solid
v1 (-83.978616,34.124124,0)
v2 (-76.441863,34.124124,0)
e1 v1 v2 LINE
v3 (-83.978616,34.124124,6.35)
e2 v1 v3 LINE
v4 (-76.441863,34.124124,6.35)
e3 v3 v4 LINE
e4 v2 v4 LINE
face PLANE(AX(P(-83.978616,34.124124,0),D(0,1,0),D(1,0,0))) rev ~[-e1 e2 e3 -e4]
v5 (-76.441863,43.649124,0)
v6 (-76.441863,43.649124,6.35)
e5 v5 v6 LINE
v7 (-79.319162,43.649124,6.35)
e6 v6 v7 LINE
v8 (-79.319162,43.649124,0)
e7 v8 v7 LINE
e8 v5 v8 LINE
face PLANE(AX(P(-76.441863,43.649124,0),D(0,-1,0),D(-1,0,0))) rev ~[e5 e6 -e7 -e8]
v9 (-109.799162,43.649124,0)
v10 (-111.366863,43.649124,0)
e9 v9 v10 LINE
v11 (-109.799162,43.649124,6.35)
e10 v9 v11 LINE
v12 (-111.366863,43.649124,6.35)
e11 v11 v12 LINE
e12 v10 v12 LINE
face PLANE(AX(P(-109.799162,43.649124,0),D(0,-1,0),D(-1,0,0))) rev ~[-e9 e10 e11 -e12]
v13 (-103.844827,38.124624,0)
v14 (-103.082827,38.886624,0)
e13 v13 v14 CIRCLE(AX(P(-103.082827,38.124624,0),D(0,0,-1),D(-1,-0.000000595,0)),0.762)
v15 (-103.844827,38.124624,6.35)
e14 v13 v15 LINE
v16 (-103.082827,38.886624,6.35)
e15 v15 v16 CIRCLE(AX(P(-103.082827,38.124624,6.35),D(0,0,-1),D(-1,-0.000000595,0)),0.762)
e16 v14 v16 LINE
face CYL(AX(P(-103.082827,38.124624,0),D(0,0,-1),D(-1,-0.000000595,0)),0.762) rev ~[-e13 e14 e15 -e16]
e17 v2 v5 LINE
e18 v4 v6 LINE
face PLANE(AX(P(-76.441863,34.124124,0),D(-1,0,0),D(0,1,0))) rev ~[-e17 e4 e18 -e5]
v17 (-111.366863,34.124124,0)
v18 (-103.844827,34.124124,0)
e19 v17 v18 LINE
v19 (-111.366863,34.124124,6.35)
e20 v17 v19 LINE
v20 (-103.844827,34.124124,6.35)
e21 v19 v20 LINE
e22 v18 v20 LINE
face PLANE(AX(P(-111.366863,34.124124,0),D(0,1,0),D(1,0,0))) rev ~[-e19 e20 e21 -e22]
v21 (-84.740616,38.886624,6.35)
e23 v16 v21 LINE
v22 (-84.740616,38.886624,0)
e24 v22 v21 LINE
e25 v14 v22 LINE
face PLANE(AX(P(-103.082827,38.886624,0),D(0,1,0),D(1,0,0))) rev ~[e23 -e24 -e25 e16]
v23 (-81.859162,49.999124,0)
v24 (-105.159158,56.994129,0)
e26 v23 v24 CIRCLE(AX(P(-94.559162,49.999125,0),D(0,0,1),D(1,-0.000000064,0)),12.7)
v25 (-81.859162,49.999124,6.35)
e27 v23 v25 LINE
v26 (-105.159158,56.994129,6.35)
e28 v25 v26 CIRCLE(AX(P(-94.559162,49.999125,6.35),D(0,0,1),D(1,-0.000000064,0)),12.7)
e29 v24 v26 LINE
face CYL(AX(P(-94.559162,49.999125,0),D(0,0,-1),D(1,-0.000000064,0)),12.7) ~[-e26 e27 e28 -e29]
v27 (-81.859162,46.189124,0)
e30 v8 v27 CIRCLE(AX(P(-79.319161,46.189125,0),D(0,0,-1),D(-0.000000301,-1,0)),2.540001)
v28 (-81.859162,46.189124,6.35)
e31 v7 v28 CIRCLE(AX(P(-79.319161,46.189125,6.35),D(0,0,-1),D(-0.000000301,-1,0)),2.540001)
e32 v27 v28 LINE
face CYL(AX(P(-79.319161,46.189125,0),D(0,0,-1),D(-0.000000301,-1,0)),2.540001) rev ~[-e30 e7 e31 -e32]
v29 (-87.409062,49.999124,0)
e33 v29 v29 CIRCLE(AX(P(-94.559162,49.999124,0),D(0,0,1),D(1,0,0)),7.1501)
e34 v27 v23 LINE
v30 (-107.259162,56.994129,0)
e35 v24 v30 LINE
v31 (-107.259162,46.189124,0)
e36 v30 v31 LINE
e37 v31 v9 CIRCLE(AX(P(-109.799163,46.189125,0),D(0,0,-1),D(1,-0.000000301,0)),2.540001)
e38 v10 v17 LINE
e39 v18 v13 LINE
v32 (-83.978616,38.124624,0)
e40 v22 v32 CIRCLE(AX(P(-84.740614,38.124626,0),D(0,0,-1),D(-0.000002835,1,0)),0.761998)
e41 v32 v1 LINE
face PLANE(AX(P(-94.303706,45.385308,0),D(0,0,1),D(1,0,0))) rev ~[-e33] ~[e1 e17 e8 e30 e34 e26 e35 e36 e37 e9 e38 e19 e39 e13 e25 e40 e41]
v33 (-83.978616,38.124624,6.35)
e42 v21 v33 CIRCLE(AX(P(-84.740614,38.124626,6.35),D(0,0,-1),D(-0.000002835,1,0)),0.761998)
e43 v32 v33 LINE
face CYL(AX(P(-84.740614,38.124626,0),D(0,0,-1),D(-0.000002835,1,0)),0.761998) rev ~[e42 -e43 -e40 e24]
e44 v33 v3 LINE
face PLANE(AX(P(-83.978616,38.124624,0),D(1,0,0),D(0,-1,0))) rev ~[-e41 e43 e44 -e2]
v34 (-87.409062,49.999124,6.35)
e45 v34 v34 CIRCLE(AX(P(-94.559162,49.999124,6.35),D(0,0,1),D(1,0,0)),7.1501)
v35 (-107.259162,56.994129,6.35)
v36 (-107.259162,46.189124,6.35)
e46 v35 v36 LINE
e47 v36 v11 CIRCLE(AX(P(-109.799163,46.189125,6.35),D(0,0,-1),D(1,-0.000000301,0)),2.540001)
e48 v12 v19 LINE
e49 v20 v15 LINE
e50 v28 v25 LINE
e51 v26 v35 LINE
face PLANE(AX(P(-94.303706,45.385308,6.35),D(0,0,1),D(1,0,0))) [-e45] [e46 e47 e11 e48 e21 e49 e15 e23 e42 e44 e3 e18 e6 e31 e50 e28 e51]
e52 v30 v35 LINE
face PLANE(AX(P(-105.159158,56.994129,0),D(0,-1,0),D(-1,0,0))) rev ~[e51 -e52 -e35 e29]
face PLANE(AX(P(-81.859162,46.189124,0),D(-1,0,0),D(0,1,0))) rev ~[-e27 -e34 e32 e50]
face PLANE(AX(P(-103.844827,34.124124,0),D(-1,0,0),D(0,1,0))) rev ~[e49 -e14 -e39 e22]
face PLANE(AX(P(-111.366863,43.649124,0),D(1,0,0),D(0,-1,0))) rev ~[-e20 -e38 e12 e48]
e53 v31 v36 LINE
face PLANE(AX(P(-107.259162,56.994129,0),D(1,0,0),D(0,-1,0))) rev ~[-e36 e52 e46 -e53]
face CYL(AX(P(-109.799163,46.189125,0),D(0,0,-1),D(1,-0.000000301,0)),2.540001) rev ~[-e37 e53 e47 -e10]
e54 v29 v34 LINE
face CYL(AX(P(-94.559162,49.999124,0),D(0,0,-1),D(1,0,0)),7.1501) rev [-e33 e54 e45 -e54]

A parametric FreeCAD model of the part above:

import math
import FreeCAD as App
import Part
import Sketcher
from FreeCAD import Vector
Q = App.Units.Quantity

doc = App.newDocument("Part")
params = doc.addObject("Spreadsheet::Sheet", "Params")
for row, (alias, value) in enumerate([
    ("sketch1_radius", "0.1 in"),
    ("sketch1_radius2", "0.5 in"),
    ("sketch1_radius3", "0.03 in"),
    ("sketch1_diameter", "0.563 in"),
    ("sketch1_height", "0.15 in"),
    ("pad1_length", "0.25 in"),
], start=1):
    params.set(f"A{row}", alias)
    params.set(f"B{row}", "=" + value)
    params.setAlias(f"B{row}", alias)

body = doc.addObject("PartDesign::Body", "Body")

# Sketch on XY plane
sketch1 = body.newObject("Sketcher::SketchObject", "Sketch")
sketch1.AttachmentSupport = (doc.getObject("XY_Plane"), [""])
sketch1.MapMode = "FlatFace"
sketch1.addGeometry(Part.LineSegment(Vector(-109.799162, 43.649124, 0), Vector(-111.366863, 43.649124, 0)), False)
sketch1.addGeometry(Part.LineSegment(Vector(-111.366863, 43.649124, 0), Vector(-111.366863, 34.124124, 0)), False)
sketch1.addGeometry(Part.LineSegment(Vector(-111.366863, 34.124124, 0), Vector(-103.844827, 34.124124, 0)), False)
sketch1.addGeometry(Part.LineSegment(Vector(-103.844827, 34.124124, 0), Vector(-103.844827, 38.124624, 0)), False)
sketch1.addGeometry(Part.ArcOfCircle(Part.Circle(Vector(-103.082827, 38.124624, 0), Vector(0, 0, 1), 0.762), math.radians(89.999966), math.radians(180.000034)), False)
sketch1.addGeometry(Part.LineSegment(Vector(-103.082827, 38.886624, 0), Vector(-84.740616, 38.886624, 0)), False)
sketch1.addGeometry(Part.ArcOfCircle(Part.Circle(Vector(-84.740614, 38.124626, 0), Vector(0, 0, 1), 0.761998), math.radians(-0.000162), math.radians(90.000162)), False)
sketch1.addGeometry(Part.LineSegment(Vector(-83.978616, 38.124624, 0), Vector(-83.978616, 34.124124, 0)), False)
sketch1.addGeometry(Part.LineSegment(Vector(-83.978616, 34.124124, 0), Vector(-76.441863, 34.124124, 0)), False)
sketch1.addGeometry(Part.LineSegment(Vector(-76.441863, 34.124124, 0), Vector(-76.441863, 43.649124, 0)), False)
sketch1.addGeometry(Part.LineSegment(Vector(-76.441863, 43.649124, 0), Vector(-79.319162, 43.649124, 0)), False)
sketch1.addGeometry(Part.ArcOfCircle(Part.Circle(Vector(-79.319161, 46.189125, 0), Vector(0, 0, 1), 2.540001), math.radians(-179.999983), math.radians(-90.000017)), False)
sketch1.addGeometry(Part.LineSegment(Vector(-81.859162, 46.189124, 0), Vector(-81.859162, 49.999124, 0)), False)
sketch1.addGeometry(Part.ArcOfCircle(Part.Circle(Vector(-94.559162, 49.999125, 0), Vector(0, 0, 1), 12.7), math.radians(-0.000004), math.radians(146.578928)), False)
sketch1.addGeometry(Part.LineSegment(Vector(-105.159158, 56.994129, 0), Vector(-107.259162, 56.994129, 0)), False)
sketch1.addGeometry(Part.LineSegment(Vector(-107.259162, 56.994129, 0), Vector(-107.259162, 46.189124, 0)), False)
sketch1.addGeometry(Part.ArcOfCircle(Part.Circle(Vector(-109.799163, 46.189125, 0), Vector(0, 0, 1), 2.540001), math.radians(-89.999983), math.radians(-0.000017)), False)
sketch1.addGeometry(Part.Circle(Vector(-94.559162, 49.999124, 0), Vector(0, 0, 1), 7.1501), False)
sketch1.addConstraint(Sketcher.Constraint("Coincident", 0, 2, 1, 1))
sketch1.addConstraint(Sketcher.Constraint("Coincident", 1, 2, 2, 1))
sketch1.addConstraint(Sketcher.Constraint("Coincident", 2, 2, 3, 1))
sketch1.addConstraint(Sketcher.Constraint("Tangent", 3, 2, 4, 2))
sketch1.addConstraint(Sketcher.Constraint("Tangent", 4, 1, 5, 1))
sketch1.addConstraint(Sketcher.Constraint("Coincident", 5, 2, 6, 2))
sketch1.addConstraint(Sketcher.Constraint("Coincident", 6, 1, 7, 1))
sketch1.addConstraint(Sketcher.Constraint("Coincident", 7, 2, 8, 1))
sketch1.addConstraint(Sketcher.Constraint("Coincident", 8, 2, 9, 1))
sketch1.addConstraint(Sketcher.Constraint("Coincident", 9, 2, 10, 1))
sketch1.addConstraint(Sketcher.Constraint("Tangent", 10, 2, 11, 2))
sketch1.addConstraint(Sketcher.Constraint("Tangent", 11, 1, 12, 1))
sketch1.addConstraint(Sketcher.Constraint("Tangent", 12, 2, 13, 1))
sketch1.addConstraint(Sketcher.Constraint("Coincident", 13, 2, 14, 1))
sketch1.addConstraint(Sketcher.Constraint("Coincident", 14, 2, 15, 1))
sketch1.addConstraint(Sketcher.Constraint("Tangent", 15, 2, 16, 2))
sketch1.addConstraint(Sketcher.Constraint("Tangent", 16, 1, 0, 1))
sketch1.addConstraint(Sketcher.Constraint("Horizontal", 0))
sketch1.addConstraint(Sketcher.Constraint("Vertical", 1))
sketch1.addConstraint(Sketcher.Constraint("Horizontal", 2))
sketch1.addConstraint(Sketcher.Constraint("Vertical", 3))
sketch1.addConstraint(Sketcher.Constraint("Horizontal", 5))
sketch1.addConstraint(Sketcher.Constraint("Vertical", 7))
sketch1.addConstraint(Sketcher.Constraint("Horizontal", 8))
sketch1.addConstraint(Sketcher.Constraint("Vertical", 9))
sketch1.addConstraint(Sketcher.Constraint("Horizontal", 10))
sketch1.addConstraint(Sketcher.Constraint("Vertical", 12))
sketch1.addConstraint(Sketcher.Constraint("Horizontal", 14))
sketch1.addConstraint(Sketcher.Constraint("Vertical", 15))
sketch1.addConstraint(Sketcher.Constraint("Coincident", 17, 3, 13, 3))
sketch1.addConstraint(Sketcher.Constraint("Equal", 4, 6))
sketch1.addConstraint(Sketcher.Constraint("Equal", 11, 16))
sketch1.addConstraint(Sketcher.Constraint("Horizontal", 11, 3, 16, 3))
sketch1.addConstraint(Sketcher.Constraint("Horizontal", 3, 2, 6, 1))
sketch1.addConstraint(Sketcher.Constraint("Horizontal", 2, 2, 7, 2))
sketch1.addConstraint(Sketcher.Constraint("Radius", 11, Q("0.1 in")))
sketch1.addConstraint(Sketcher.Constraint("Radius", 13, Q("0.5 in")))
sketch1.addConstraint(Sketcher.Constraint("Radius", 4, Q("0.03 in")))
sketch1.addConstraint(Sketcher.Constraint("Diameter", 17, Q("0.563 in")))
sketch1.addConstraint(Sketcher.Constraint("DistanceY", 12, 1, 12, 2, Q("0.15 in")))
sketch1.addConstraint(Sketcher.Constraint("DistanceX", 16, 3, 13, 3, Q("0.6 in")))
sketch1.addConstraint(Sketcher.Constraint("DistanceY", 1, 2, 1, 1, Q("0.375 in")))
sketch1.addConstraint(Sketcher.Constraint("DistanceX", 5, 2, 6, 1, Q("0.03 in")))
sketch1.addConstraint(Sketcher.Constraint("DistanceY", 3, 1, 3, 2, Q("0.1575 in")))
sketch1.addConstraint(Sketcher.Constraint("DistanceX", 0, 2, 0, 1, Q("1.567701 mm")))
sketch1.addConstraint(Sketcher.Constraint("DistanceX", 10, 2, 10, 1, Q("2.877299 mm")))
sketch1.addConstraint(Sketcher.Constraint("DistanceX", 5, 1, 5, 2, Q("18.342211 mm")))
sketch1.addConstraint(Sketcher.Constraint("DistanceX", 2, 1, 2, 2, Q("7.522036 mm")))
sketch1.addConstraint(Sketcher.Constraint("DistanceX", 14, 2, 14, 1, Q("2.100004 mm")))
sketch1.addConstraint(Sketcher.Constraint("DistanceX", 11, 3, -1, 1, Q("79.319161 mm")))
sketch1.addConstraint(Sketcher.Constraint("DistanceY", -1, 1, 13, 2, Q("56.994129 mm")))
sketch1.setExpression("Constraints[35]", "Params.sketch1_radius")
sketch1.setExpression("Constraints[36]", "Params.sketch1_radius2")
sketch1.setExpression("Constraints[37]", "Params.sketch1_radius3")
sketch1.setExpression("Constraints[38]", "Params.sketch1_diameter")
sketch1.setExpression("Constraints[39]", "Params.sketch1_height")
pad1 = body.newObject("PartDesign::Pad", "Pad")
pad1.Profile = sketch1
pad1.setExpression("Length", "Params.pad1_length")

doc.recompute()
